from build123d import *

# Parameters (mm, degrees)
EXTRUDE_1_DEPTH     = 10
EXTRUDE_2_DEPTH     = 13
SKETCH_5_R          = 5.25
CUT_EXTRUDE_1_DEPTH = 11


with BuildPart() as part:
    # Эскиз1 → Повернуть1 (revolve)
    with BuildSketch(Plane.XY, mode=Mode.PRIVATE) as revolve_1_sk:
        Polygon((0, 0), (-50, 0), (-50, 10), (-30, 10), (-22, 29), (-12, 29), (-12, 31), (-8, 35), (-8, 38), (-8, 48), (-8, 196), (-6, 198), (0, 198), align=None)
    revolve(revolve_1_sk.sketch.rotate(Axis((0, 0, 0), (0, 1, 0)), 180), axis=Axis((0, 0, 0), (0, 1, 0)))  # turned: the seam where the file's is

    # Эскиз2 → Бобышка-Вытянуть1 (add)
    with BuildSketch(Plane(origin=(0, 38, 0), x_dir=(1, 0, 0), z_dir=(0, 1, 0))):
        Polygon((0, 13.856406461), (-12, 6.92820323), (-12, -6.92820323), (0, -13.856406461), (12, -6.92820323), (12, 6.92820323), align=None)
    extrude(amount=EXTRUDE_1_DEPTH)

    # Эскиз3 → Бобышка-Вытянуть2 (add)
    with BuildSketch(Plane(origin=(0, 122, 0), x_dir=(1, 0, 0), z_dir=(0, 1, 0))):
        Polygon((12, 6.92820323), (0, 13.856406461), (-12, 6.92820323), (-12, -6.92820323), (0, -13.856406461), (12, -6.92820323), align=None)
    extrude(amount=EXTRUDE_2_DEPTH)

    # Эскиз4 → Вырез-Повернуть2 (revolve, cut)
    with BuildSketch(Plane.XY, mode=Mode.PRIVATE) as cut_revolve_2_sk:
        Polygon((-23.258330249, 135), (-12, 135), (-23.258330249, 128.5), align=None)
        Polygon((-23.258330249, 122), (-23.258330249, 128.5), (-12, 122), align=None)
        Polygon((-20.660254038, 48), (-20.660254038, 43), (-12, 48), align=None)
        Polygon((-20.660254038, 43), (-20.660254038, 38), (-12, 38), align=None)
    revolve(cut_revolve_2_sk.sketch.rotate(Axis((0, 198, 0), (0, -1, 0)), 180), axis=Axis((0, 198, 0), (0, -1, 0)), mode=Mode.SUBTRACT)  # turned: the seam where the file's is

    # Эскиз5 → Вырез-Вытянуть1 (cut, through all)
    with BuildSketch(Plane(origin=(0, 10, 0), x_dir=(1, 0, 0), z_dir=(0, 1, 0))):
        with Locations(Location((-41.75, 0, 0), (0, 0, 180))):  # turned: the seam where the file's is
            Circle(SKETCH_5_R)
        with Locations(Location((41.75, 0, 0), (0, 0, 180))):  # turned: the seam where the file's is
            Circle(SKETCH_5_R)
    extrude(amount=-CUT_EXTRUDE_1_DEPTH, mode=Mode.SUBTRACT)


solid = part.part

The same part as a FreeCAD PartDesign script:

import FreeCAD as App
import Part
import Sketcher

V = App.Vector
Q = App.Units.Quantity

doc = App.newDocument("Part")
body = doc.addObject("PartDesign::Body", "Body")

# Sketch on XY plane
sketch1 = doc.addObject("Sketcher::SketchObject", "Sketch")
body.addObject(sketch1)
sketch1.AttachmentSupport = (doc.XY_Plane, [""])
sketch1.MapMode = "FlatFace"
sketch1.addGeometry([
    Part.LineSegment(V(-50, 0, 0), V(0, 0, 0)),  # 0
    Part.LineSegment(V(0, 0, 0), V(0, 198, 0)),  # 1
    Part.LineSegment(V(0, 198, 0), V(-6, 198, 0)),  # 2
    Part.LineSegment(V(-6, 198, 0), V(-8, 196, 0)),  # 3
    Part.LineSegment(V(-8, 196, 0), V(-8, 35, 0)),  # 4
    Part.LineSegment(V(-8, 35, 0), V(-12, 31, 0)),  # 5
    Part.LineSegment(V(-12, 31, 0), V(-12, 29, 0)),  # 6
    Part.LineSegment(V(-12, 29, 0), V(-22, 29, 0)),  # 7
    Part.LineSegment(V(-22, 29, 0), V(-30, 10, 0)),  # 8
    Part.LineSegment(V(-30, 10, 0), V(-50, 10, 0)),  # 9
    Part.LineSegment(V(-50, 10, 0), V(-50, 0, 0)),  # 10
], False)
sketch1.addConstraint([
    Sketcher.Constraint("Coincident", 0, 2, 1, 1),
    Sketcher.Constraint("Coincident", 1, 2, 2, 1),
    Sketcher.Constraint("Coincident", 2, 2, 3, 1),
    Sketcher.Constraint("Coincident", 3, 2, 4, 1),
    Sketcher.Constraint("Coincident", 4, 2, 5, 1),
    Sketcher.Constraint("Coincident", 5, 2, 6, 1),
    Sketcher.Constraint("Coincident", 6, 2, 7, 1),
    Sketcher.Constraint("Coincident", 7, 2, 8, 1),
    Sketcher.Constraint("Coincident", 8, 2, 9, 1),
    Sketcher.Constraint("Coincident", 9, 2, 10, 1),
    Sketcher.Constraint("Coincident", 10, 2, 0, 1),
    Sketcher.Constraint("Horizontal", 0),
    Sketcher.Constraint("Vertical", 1),
    Sketcher.Constraint("Horizontal", 2),
    Sketcher.Constraint("Vertical", 4),
    Sketcher.Constraint("Vertical", 6),
    Sketcher.Constraint("Horizontal", 7),
    Sketcher.Constraint("Horizontal", 9),
    Sketcher.Constraint("Vertical", 10),
    Sketcher.Constraint("Coincident", 0, 2, -1, 1),
    Sketcher.Constraint("Parallel", 3, 5),
    Sketcher.Constraint("Equal", 7, 10),
    Sketcher.Constraint("DistanceX", 0, 1, 0, 2, Q("50 mm")),
    Sketcher.Constraint("DistanceX", 2, 2, 2, 1, Q("6 mm")),
    Sketcher.Constraint("DistanceX", 7, 2, 7, 1, Q("10 mm")),
    Sketcher.Constraint("DistanceX", 9, 2, 9, 1, Q("20 mm")),
    Sketcher.Constraint("DistanceY", 1, 1, 1, 2, Q("198 mm")),
    Sketcher.Constraint("DistanceY", 4, 2, 4, 1, Q("161 mm")),
    Sketcher.Constraint("DistanceY", 6, 2, 6, 1, Q("2 mm")),
    Sketcher.Constraint("Angle", 3, Q("-135 deg")),
    Sketcher.Constraint("DistanceX", 3, 2, -1, 1, Q("8 mm")),
    Sketcher.Constraint("DistanceX", 5, 2, -1, 1, Q("12 mm")),
])
revolution = doc.addObject("PartDesign::Revolution", "Revolution")
body.addObject(revolution)
revolution.Profile = sketch1
revolution.ReferenceAxis = (sketch1, ["V_Axis"])
revolution.Angle = 360

# Sketch on XZ plane
sketch2 = doc.addObject("Sketcher::SketchObject", "Sketch001")
body.addObject(sketch2)
sketch2.AttachmentSupport = (doc.XZ_Plane, [""])
sketch2.MapMode = "FlatFace"
sketch2.AttachmentOffset = App.Placement(V(0, 0, -38), App.Rotation())
sketch2.addGeometry([
    Part.LineSegment(V(0, -14, 0), V(-12, -7, 0)),  # 0
    Part.LineSegment(V(-12, -7, 0), V(-12, 7, 0)),  # 1
    Part.LineSegment(V(-12, 7, 0), V(0, 14, 0)),  # 2
    Part.LineSegment(V(0, 14, 0), V(12, 7, 0)),  # 3
    Part.LineSegment(V(12, 7, 0), V(12, -7, 0)),  # 4
    Part.LineSegment(V(12, -7, 0), V(0, -14, 0)),  # 5
], False)
sketch2.addConstraint([
    Sketcher.Constraint("Coincident", 0, 2, 1, 1),
    Sketcher.Constraint("Coincident", 1, 2, 2, 1),
    Sketcher.Constraint("Coincident", 2, 2, 3, 1),
    Sketcher.Constraint("Coincident", 3, 2, 4, 1),
    Sketcher.Constraint("Coincident", 4, 2, 5, 1),
    Sketcher.Constraint("Coincident", 5, 2, 0, 1),
    Sketcher.Constraint("Vertical", 1),
    Sketcher.Constraint("Vertical", 4),
    Sketcher.Constraint("Symmetric", 0, 2, 3, 2, -1, 1),
    Sketcher.Constraint("Symmetric", 2, 2, 5, 2, -1, 1),
    Sketcher.Constraint("PointOnObject", 2, 2, -2),
    Sketcher.Constraint("Parallel", 2, 5),
    Sketcher.Constraint("Horizontal", 1, 2, 3, 2),
    Sketcher.Constraint("Angle", 0, Q("150 deg")),
    Sketcher.Constraint("DistanceX", 0, 2, -1, 1, Q("12 mm")),
    Sketcher.Constraint("DistanceY", 1, 1, 1, 2, Q("13.856406 mm")),
])
pad1 = doc.addObject("PartDesign::Pad", "Pad")
body.addObject(pad1)
pad1.Profile = sketch2
pad1.Length = 10
pad1.Reversed = True

# Sketch on XZ plane
sketch3 = doc.addObject("Sketcher::SketchObject", "Sketch002")
body.addObject(sketch3)
sketch3.AttachmentSupport = (doc.XZ_Plane, [""])
sketch3.MapMode = "FlatFace"
sketch3.AttachmentOffset = App.Placement(V(0, 0, -122), App.Rotation())
sketch3.addGeometry([
    Part.LineSegment(V(12, -7, 0), V(0, -14, 0)),  # 0
    Part.LineSegment(V(0, -14, 0), V(-12, -7, 0)),  # 1
    Part.LineSegment(V(-12, -7, 0), V(-12, 7, 0)),  # 2
    Part.LineSegment(V(-12, 7, 0), V(0, 14, 0)),  # 3
    Part.LineSegment(V(0, 14, 0), V(12, 7, 0)),  # 4
    Part.LineSegment(V(12, 7, 0), V(12, -7, 0)),  # 5
], False)
sketch3.addConstraint([
    Sketcher.Constraint("Coincident", 0, 2, 1, 1),
    Sketcher.Constraint("Coincident", 1, 2, 2, 1),
    Sketcher.Constraint("Coincident", 2, 2, 3, 1),
    Sketcher.Constraint("Coincident", 3, 2, 4, 1),
    Sketcher.Constraint("Coincident", 4, 2, 5, 1),
    Sketcher.Constraint("Coincident", 5, 2, 0, 1),
    Sketcher.Constraint("Vertical", 2),
    Sketcher.Constraint("Vertical", 5),
    Sketcher.Constraint("Symmetric", 0, 2, 3, 2, -1, 1),
    Sketcher.Constraint("Symmetric", 1, 2, 4, 2, -1, 1),
    Sketcher.Constraint("PointOnObject", 0, 2, -2),
    Sketcher.Constraint("Parallel", 0, 3),
    Sketcher.Constraint("Horizontal", 2, 2, 4, 2),
    Sketcher.Constraint("Angle", 0, Q("-150 deg")),
    Sketcher.Constraint("DistanceX", 1, 2, -1, 1, Q("12 mm")),
    Sketcher.Constraint("DistanceY", 2, 1, 2, 2, Q("13.856406 mm")),
])
pad2 = doc.addObject("PartDesign::Pad", "Pad001")
body.addObject(pad2)
pad2.Profile = sketch3
pad2.Length = 13
pad2.Reversed = True

# Sketch on XY plane
sketch4 = doc.addObject("Sketcher::SketchObject", "Sketch003")
body.addObject(sketch4)
sketch4.AttachmentSupport = (doc.XY_Plane, [""])
sketch4.MapMode = "FlatFace"
sketch4.addGeometry([
    Part.LineSegment(V(-12, 135, 0), V(-23, 135, 0)),  # 0
    Part.LineSegment(V(-23, 135, 0), V(-23, 128, 0)),  # 1
    Part.LineSegment(V(-23, 128, 0), V(-12, 135, 0)),  # 2
    Part.LineSegment(V(-23, 128, 0), V(-23, 122, 0)),  # 3
    Part.LineSegment(V(-23, 122, 0), V(-12, 122, 0)),  # 4
    Part.LineSegment(V(-12, 122, 0), V(-23, 128, 0)),  # 5
    Part.LineSegment(V(-21, 48, 0), V(-21, 43, 0)),  # 6
    Part.LineSegment(V(-21, 43, 0), V(-12, 48, 0)),  # 7
    Part.LineSegment(V(-12, 48, 0), V(-21, 48, 0)),  # 8
    Part.LineSegment(V(-21, 43, 0), V(-21, 38, 0)),  # 9
    Part.LineSegment(V(-21, 38, 0), V(-12, 38, 0)),  # 10
    Part.LineSegment(V(-12, 38, 0), V(-21, 43, 0)),  # 11
], False)
sketch4.addConstraint([
    Sketcher.Constraint("Coincident", 0, 2, 1, 1),
    Sketcher.Constraint("Coincident", 1, 2, 2, 1),
    Sketcher.Constraint("Coincident", 2, 2, 0, 1),
    Sketcher.Constraint("Coincident", 3, 2, 4, 1),
    Sketcher.Constraint("Coincident", 4, 2, 5, 1),
    Sketcher.Constraint("Coincident", 5, 2, 3, 1),
    Sketcher.Constraint("Coincident", 6, 2, 7, 1),
    Sketcher.Constraint("Coincident", 7, 2, 8, 1),
    Sketcher.Constraint("Coincident", 8, 2, 6, 1),
    Sketcher.Constraint("Coincident", 9, 2, 10, 1),
    Sketcher.Constraint("Coincident", 10, 2, 11, 1),
    Sketcher.Constraint("Coincident", 11, 2, 9, 1),
    Sketcher.Constraint("Horizontal", 0),
    Sketcher.Constraint("Vertical", 1),
    Sketcher.Constraint("Vertical", 3),
    Sketcher.Constraint("Horizontal", 4),
    Sketcher.Constraint("Vertical", 6),
    Sketcher.Constraint("Horizontal", 8),
    Sketcher.Constraint("Vertical", 9),
    Sketcher.Constraint("Horizontal", 10),
    Sketcher.Constraint("Coincident", 5, 2, 1, 2),
    Sketcher.Constraint("Coincident", 11, 2, 6, 2),
    Sketcher.Constraint("Parallel", 2, 7),
    Sketcher.Constraint("Parallel", 5, 11),
    Sketcher.Constraint("Vertical", 2, 2, 4, 2),
    Sketcher.Constraint("Vertical", 4, 2, 7, 2),
    Sketcher.Constraint("Vertical", 7, 2, 10, 2),
    Sketcher.Constraint("Equal", 1, 3),
    Sketcher.Constraint("DistanceY", 6, 2, 6, 1, Q("5 mm")),
    Sketcher.Constraint("Angle", 2, Q("30 deg")),
    Sketcher.Constraint("Distance", 2, Q("13 mm")),
    Sketcher.Constraint("DistanceY", -1, 1, 0, 2, Q("135 mm")),
    Sketcher.Constraint("DistanceX", 2, 2, -1, 1, Q("12 mm")),
    Sketcher.Constraint("DistanceY", -1, 1, 6, 2, Q("43 mm")),
])
groove = doc.addObject("PartDesign::Groove", "Groove")
body.addObject(groove)
groove.Profile = sketch4
groove.ReferenceAxis = (sketch4, ["V_Axis"])
groove.Angle = 360

# Sketch on XZ plane
sketch5 = doc.addObject("Sketcher::SketchObject", "Sketch004")
body.addObject(sketch5)
sketch5.AttachmentSupport = (doc.XZ_Plane, [""])
sketch5.MapMode = "FlatFace"
sketch5.AttachmentOffset = App.Placement(V(0, 0, -10), App.Rotation())
sketch5.addGeometry([
    Part.Circle(V(-42, 0, 0), V(0, 0, 1), 5),
    Part.Circle(V(42, 0, 0), V(0, 0, 1), 5),
], False)
sketch5.addConstraint([
    Sketcher.Constraint("Equal", 0, 1),
    Sketcher.Constraint("Symmetric", 0, 3, 1, 3, -1, 1),
    Sketcher.Constraint("PointOnObject", 0, 3, -1),
    Sketcher.Constraint("Diameter", 0, Q("10.5 mm")),
    Sketcher.Constraint("DistanceX", 0, 3, 1, 3, Q("83.5 mm")),
])
pocket1 = doc.addObject("PartDesign::Pocket", "Pocket")
body.addObject(pocket1)
pocket1.Profile = sketch5
pocket1.Type = "ThroughAll"
pocket1.Reversed = True

doc.recompute()
